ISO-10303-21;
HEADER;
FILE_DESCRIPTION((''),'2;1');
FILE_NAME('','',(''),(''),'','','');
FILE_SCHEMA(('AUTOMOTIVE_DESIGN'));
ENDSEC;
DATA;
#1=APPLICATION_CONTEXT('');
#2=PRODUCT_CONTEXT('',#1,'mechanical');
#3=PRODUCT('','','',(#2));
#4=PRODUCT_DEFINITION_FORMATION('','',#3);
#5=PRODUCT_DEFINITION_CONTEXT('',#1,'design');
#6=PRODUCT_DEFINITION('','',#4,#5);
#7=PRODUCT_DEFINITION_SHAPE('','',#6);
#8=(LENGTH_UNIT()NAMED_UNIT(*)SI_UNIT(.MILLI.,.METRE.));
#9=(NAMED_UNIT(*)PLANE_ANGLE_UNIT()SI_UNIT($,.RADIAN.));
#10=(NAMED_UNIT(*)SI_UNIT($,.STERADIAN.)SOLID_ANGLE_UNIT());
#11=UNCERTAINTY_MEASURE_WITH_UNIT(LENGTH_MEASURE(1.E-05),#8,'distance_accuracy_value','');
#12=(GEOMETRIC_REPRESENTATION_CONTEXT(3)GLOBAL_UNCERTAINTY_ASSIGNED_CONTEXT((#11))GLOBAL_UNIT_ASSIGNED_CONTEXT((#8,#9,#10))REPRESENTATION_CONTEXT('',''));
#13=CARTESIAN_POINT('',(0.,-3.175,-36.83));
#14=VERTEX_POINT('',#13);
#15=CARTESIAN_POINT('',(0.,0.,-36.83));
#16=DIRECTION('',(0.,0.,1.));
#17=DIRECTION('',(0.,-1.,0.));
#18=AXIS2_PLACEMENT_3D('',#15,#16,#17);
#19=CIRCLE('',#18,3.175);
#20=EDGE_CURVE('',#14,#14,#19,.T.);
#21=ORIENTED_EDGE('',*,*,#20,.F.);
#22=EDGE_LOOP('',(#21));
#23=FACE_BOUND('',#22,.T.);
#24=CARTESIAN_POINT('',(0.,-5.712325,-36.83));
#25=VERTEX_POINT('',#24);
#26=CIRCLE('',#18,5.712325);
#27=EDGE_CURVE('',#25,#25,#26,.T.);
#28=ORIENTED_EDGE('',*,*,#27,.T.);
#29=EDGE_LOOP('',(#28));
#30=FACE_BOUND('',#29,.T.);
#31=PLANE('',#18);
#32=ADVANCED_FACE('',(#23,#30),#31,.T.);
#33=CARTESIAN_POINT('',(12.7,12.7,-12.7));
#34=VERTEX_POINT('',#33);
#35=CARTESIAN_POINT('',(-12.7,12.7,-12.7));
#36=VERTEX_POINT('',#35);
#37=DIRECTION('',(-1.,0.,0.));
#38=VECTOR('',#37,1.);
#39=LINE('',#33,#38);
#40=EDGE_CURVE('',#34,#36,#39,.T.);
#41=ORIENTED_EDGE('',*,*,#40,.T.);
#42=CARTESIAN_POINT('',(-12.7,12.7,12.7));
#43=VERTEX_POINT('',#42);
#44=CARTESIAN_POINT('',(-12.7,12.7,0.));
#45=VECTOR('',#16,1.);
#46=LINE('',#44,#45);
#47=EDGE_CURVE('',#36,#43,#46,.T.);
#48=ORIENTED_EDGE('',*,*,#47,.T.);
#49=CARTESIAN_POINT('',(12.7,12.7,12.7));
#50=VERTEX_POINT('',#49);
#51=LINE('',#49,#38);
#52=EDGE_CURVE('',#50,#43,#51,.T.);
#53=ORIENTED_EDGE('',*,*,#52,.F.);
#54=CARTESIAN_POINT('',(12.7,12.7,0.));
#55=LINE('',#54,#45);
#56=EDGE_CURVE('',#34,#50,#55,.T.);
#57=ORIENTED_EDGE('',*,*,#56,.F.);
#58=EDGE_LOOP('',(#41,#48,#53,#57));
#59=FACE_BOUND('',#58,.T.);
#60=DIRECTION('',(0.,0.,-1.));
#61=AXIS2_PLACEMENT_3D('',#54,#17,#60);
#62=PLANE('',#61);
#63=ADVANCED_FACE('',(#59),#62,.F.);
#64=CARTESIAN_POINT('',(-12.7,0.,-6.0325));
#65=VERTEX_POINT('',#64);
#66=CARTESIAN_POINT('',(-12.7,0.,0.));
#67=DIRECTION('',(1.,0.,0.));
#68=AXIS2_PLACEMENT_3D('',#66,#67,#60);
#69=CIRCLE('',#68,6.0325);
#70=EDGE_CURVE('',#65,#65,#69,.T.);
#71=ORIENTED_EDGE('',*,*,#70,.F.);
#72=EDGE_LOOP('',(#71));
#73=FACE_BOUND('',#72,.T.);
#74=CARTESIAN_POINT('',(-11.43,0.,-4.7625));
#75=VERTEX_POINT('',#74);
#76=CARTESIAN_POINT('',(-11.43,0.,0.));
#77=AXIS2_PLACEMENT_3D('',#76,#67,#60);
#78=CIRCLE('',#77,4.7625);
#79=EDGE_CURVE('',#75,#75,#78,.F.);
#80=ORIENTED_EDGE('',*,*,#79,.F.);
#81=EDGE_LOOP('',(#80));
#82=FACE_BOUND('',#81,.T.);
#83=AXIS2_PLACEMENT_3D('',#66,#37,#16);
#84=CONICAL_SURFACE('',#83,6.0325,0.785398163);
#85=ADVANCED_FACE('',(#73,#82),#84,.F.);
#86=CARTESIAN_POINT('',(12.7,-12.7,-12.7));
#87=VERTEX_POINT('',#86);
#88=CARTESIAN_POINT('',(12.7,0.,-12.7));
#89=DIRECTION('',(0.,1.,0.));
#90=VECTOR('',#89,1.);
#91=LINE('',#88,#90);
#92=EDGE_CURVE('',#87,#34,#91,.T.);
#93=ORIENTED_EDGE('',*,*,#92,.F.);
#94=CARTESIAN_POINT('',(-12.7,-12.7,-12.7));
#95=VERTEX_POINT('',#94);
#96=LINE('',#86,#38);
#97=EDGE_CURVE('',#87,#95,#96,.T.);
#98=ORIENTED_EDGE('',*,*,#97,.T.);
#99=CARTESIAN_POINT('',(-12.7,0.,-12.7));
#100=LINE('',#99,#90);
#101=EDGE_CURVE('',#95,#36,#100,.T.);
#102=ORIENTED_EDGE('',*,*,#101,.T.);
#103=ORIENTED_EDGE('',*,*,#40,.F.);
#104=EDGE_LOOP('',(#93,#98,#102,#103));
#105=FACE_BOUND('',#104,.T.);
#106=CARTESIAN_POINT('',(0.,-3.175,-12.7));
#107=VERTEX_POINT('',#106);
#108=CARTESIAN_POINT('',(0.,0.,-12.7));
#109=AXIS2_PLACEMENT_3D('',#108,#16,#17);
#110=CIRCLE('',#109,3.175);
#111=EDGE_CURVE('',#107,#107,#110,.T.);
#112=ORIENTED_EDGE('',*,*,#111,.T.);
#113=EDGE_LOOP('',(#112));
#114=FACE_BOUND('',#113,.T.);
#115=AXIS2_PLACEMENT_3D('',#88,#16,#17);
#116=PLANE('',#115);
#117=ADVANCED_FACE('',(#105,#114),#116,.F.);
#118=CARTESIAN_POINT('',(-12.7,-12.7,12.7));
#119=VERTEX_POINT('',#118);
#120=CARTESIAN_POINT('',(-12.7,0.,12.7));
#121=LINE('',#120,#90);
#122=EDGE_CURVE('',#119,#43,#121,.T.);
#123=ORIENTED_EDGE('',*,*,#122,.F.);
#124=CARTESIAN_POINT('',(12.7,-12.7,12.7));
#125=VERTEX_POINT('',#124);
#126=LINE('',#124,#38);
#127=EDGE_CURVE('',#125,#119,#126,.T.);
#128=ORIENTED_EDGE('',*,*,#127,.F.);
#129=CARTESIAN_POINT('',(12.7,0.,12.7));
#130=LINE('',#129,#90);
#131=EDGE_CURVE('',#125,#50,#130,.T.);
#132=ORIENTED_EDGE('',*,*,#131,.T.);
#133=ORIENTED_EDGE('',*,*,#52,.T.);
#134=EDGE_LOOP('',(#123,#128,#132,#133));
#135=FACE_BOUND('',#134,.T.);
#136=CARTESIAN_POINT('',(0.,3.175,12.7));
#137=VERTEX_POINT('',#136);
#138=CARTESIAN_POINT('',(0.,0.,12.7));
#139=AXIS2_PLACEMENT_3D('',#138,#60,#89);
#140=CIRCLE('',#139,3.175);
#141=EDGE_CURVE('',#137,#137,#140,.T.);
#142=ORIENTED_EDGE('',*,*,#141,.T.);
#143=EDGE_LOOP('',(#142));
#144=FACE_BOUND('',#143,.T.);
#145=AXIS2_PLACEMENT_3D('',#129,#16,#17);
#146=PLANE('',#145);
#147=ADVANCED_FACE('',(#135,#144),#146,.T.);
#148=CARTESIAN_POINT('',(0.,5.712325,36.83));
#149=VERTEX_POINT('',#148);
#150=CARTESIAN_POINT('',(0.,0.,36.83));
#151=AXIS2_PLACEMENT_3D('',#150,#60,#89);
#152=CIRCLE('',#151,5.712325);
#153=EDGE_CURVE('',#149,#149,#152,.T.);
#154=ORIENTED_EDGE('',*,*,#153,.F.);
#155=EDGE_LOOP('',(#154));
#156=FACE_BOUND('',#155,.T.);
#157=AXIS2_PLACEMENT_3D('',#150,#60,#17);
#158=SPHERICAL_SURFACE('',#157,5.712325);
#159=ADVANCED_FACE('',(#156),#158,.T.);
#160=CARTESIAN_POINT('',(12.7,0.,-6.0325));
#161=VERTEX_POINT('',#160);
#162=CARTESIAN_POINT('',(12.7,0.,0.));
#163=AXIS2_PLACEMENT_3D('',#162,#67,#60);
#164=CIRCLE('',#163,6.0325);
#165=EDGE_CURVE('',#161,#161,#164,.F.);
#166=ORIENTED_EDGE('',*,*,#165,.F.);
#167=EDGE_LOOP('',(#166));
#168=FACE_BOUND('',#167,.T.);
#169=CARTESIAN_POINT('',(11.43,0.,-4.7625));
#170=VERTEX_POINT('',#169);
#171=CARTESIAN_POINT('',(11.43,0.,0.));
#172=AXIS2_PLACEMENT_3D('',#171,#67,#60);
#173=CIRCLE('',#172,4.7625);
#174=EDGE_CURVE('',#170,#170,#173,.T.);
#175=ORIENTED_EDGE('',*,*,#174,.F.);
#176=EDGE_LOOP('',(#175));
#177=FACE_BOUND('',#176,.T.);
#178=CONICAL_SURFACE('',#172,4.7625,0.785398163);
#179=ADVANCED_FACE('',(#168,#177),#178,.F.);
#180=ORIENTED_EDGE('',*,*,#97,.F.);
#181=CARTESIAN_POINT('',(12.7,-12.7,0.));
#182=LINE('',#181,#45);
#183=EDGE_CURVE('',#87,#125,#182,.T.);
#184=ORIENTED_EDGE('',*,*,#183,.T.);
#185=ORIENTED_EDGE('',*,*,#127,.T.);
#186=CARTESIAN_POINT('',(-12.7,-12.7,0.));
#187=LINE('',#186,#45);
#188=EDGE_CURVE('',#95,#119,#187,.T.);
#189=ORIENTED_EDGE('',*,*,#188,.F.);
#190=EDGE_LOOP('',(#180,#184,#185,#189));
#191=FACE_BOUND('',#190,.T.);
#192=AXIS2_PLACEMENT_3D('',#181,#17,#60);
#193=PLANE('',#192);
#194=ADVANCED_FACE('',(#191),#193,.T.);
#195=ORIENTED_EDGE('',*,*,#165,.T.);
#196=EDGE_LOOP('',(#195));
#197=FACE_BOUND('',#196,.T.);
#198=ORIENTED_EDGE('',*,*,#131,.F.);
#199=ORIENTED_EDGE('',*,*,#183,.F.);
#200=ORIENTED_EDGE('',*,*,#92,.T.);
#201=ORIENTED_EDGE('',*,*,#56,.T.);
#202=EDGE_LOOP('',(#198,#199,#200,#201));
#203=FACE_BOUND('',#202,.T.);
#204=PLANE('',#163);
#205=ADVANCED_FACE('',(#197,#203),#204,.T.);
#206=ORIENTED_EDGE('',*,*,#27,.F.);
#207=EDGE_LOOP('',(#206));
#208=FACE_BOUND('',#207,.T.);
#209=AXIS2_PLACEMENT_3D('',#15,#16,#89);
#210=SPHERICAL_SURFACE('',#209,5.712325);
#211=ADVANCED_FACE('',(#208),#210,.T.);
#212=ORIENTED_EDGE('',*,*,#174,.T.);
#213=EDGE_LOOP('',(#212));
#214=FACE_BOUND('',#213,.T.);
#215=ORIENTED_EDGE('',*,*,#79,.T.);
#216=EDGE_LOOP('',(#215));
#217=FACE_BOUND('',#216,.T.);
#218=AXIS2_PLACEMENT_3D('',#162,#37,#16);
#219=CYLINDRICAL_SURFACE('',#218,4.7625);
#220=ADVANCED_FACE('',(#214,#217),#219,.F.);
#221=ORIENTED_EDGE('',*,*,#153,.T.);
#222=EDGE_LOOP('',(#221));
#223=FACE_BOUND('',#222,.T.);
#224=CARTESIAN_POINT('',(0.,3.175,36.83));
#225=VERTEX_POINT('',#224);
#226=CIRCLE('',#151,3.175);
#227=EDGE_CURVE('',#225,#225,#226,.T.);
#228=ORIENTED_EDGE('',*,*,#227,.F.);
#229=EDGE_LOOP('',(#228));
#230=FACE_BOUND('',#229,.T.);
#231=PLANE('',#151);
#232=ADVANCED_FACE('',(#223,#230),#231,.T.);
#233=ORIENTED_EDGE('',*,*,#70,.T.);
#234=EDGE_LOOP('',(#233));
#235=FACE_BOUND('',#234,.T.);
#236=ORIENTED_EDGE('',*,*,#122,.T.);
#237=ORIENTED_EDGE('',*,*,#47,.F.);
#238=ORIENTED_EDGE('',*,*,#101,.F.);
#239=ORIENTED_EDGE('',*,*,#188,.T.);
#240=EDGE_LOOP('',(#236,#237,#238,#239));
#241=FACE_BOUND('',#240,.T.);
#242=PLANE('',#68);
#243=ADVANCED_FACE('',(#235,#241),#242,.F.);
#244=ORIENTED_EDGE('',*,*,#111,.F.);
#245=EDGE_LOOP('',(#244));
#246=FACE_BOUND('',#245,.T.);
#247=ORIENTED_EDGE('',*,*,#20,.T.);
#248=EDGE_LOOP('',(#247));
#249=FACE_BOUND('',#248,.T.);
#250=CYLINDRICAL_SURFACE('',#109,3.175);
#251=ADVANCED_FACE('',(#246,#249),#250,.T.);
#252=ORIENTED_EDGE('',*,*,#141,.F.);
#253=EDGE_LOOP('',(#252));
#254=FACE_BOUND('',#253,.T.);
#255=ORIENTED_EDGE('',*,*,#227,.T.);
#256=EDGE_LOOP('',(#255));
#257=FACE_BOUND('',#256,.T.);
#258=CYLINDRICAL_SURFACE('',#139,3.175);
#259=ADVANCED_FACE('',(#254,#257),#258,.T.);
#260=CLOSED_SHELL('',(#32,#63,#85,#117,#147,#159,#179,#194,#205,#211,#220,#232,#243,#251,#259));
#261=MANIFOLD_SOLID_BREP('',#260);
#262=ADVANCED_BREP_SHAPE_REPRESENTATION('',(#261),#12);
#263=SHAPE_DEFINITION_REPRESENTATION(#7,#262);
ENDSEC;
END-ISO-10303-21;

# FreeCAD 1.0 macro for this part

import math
import FreeCAD as App
import Part
import Sketcher
from FreeCAD import Vector
Q = App.Units.Quantity


def edges_at(feature, points):
    """Names of the edges that pass closest to the given points."""
    edges = feature.Shape.Edges
    near = lambda p: min(range(len(edges)), key=lambda i: edges[i].distToShape(Part.Vertex(*p))[0])
    return sorted({f"Edge{near(p) + 1}" for p in points})

doc = App.newDocument("Part")
body = doc.addObject("PartDesign::Body", "Body")

# Sketch on YZ plane
sketch1 = body.newObject("Sketcher::SketchObject", "Sketch")
sketch1.AttachmentSupport = (doc.getObject("YZ_Plane"), [""])
sketch1.MapMode = "FlatFace"
sketch1.addGeometry(Part.LineSegment(Vector(12.7, 12.7, 0), Vector(-12.7, 12.7, 0)), False)
sketch1.addGeometry(Part.LineSegment(Vector(-12.7, 12.7, 0), Vector(-12.7, -12.7, 0)), False)
sketch1.addGeometry(Part.LineSegment(Vector(-12.7, -12.7, 0), Vector(12.7, -12.7, 0)), False)
sketch1.addGeometry(Part.LineSegment(Vector(12.7, -12.7, 0), Vector(12.7, 12.7, 0)), False)
sketch1.addGeometry(Part.Circle(Vector(0, 0, 0), Vector(0, 0, 1), 4.8), False)
sketch1.addConstraint(Sketcher.Constraint("Coincident", 0, 2, 1, 1))
sketch1.addConstraint(Sketcher.Constraint("Coincident", 1, 2, 2, 1))
sketch1.addConstraint(Sketcher.Constraint("Coincident", 2, 2, 3, 1))
sketch1.addConstraint(Sketcher.Constraint("Coincident", 3, 2, 0, 1))
sketch1.addConstraint(Sketcher.Constraint("Horizontal", 0))
sketch1.addConstraint(Sketcher.Constraint("Vertical", 1))
sketch1.addConstraint(Sketcher.Constraint("Horizontal", 2))
sketch1.addConstraint(Sketcher.Constraint("Vertical", 3))
sketch1.addConstraint(Sketcher.Constraint("Coincident", 4, 3, -1, 1))
sketch1.addConstraint(Sketcher.Constraint("Symmetric", 0, 2, 2, 2, -1, 1))
sketch1.addConstraint(Sketcher.Constraint("Equal", 2, 1))
sketch1.addConstraint(Sketcher.Constraint("DistanceX", 0, 2, 0, 1, Q("1 in")))
sketch1.addConstraint(Sketcher.Constraint("Diameter", 4, Q("0.375 in")))
pad1 = body.newObject("PartDesign::Pad", "Pad")
pad1.Profile = sketch1
pad1.Length = Q("1 in")
pad1.Midplane = True

# Sketch on YZ plane
sketch2 = body.newObject("Sketcher::SketchObject", "Sketch001")
sketch2.AttachmentSupport = (doc.getObject("YZ_Plane"), [""])
sketch2.MapMode = "FlatFace"
sketch2.addGeometry(Part.LineSegment(Vector(0, 12.7, 0), Vector(3.2, 12.7, 0)), False)
sketch2.addGeometry(Part.LineSegment(Vector(3.2, 12.7, 0), Vector(3.2, 36.8, 0)), False)
sketch2.addGeometry(Part.LineSegment(Vector(3.2, 36.8, 0), Vector(5.7, 36.8, 0)), False)
sketch2.addGeometry(Part.ArcOfCircle(Part.Circle(Vector(0, 36.8, 0), Vector(0, 0, 1), 5.7), math.radians(0), math.radians(90)), False)
sketch2.addGeometry(Part.LineSegment(Vector(0, 42.5, 0), Vector(0, 12.7, 0)), False)
sketch2.addConstraint(Sketcher.Constraint("Coincident", 0, 2, 1, 1))
sketch2.addConstraint(Sketcher.Constraint("Coincident", 1, 2, 2, 1))
sketch2.addConstraint(Sketcher.Constraint("Coincident", 2, 2, 3, 1))
sketch2.addConstraint(Sketcher.Constraint("Coincident", 3, 2, 4, 1))
sketch2.addConstraint(Sketcher.Constraint("Coincident", 4, 2, 0, 1))
sketch2.addConstraint(Sketcher.Constraint("Horizontal", 0))
sketch2.addConstraint(Sketcher.Constraint("Vertical", 1))
sketch2.addConstraint(Sketcher.Constraint("Horizontal", 2))
sketch2.addConstraint(Sketcher.Constraint("Vertical", 4))
sketch2.addConstraint(Sketcher.Constraint("PointOnObject", 3, 3, -2))
sketch2.addConstraint(Sketcher.Constraint("PointOnObject", 3, 2, -2))
sketch2.addConstraint(Sketcher.Constraint("Horizontal", 3, 3, 1, 2))
sketch2.addConstraint(Sketcher.Constraint("DistanceY", 1, 1, 1, 2, Q("0.95 in")))
sketch2.addConstraint(Sketcher.Constraint("DistanceY", -1, 1, 0, 2, Q("0.5 in")))
sketch2.addConstraint(Sketcher.Constraint("DistanceX", 0, 1, 0, 2, Q("0.125 in")))
sketch2.addConstraint(Sketcher.Constraint("Radius", 3, 5.712325))
revolution = body.newObject("PartDesign::Revolution", "Revolution")
revolution.Profile = sketch2
revolution.ReferenceAxis = (sketch2, ["V_Axis"])
revolution.Angle = 360

# Sketch on YZ plane
sketch3 = body.newObject("Sketcher::SketchObject", "Sketch002")
sketch3.AttachmentSupport = (doc.getObject("YZ_Plane"), [""])
sketch3.MapMode = "FlatFace"
sketch3.addGeometry(Part.LineSegment(Vector(3.2, -12.7, 0), Vector(0, -12.7, 0)), False)
sketch3.addGeometry(Part.LineSegment(Vector(0, -12.7, 0), Vector(0, -42.5, 0)), False)
sketch3.addGeometry(Part.ArcOfCircle(Part.Circle(Vector(0, -36.8, 0), Vector(0, 0, 1), 5.7), math.radians(-90), math.radians(0)), False)
sketch3.addGeometry(Part.LineSegment(Vector(5.7, -36.8, 0), Vector(3.2, -36.8, 0)), False)
sketch3.addGeometry(Part.LineSegment(Vector(3.2, -36.8, 0), Vector(3.2, -12.7, 0)), False)
sketch3.addConstraint(Sketcher.Constraint("Coincident", 0, 2, 1, 1))
sketch3.addConstraint(Sketcher.Constraint("Coincident", 1, 2, 2, 1))
sketch3.addConstraint(Sketcher.Constraint("Coincident", 2, 2, 3, 1))
sketch3.addConstraint(Sketcher.Constraint("Coincident", 3, 2, 4, 1))
sketch3.addConstraint(Sketcher.Constraint("Coincident", 4, 2, 0, 1))
sketch3.addConstraint(Sketcher.Constraint("Horizontal", 0))
sketch3.addConstraint(Sketcher.Constraint("Vertical", 1))
sketch3.addConstraint(Sketcher.Constraint("Horizontal", 3))
sketch3.addConstraint(Sketcher.Constraint("Vertical", 4))
sketch3.addConstraint(Sketcher.Constraint("PointOnObject", 2, 3, -2))
sketch3.addConstraint(Sketcher.Constraint("PointOnObject", 0, 2, -2))
sketch3.addConstraint(Sketcher.Constraint("DistanceY", 4, 1, 4, 2, Q("0.95 in")))
sketch3.addConstraint(Sketcher.Constraint("DistanceY", 0, 2, -1, 1, Q("0.5 in")))
sketch3.addConstraint(Sketcher.Constraint("DistanceX", 0, 2, 0, 1, Q("0.125 in")))
sketch3.addConstraint(Sketcher.Constraint("DistanceY", 2, 3, -1, 1, Q("1.45 in")))
sketch3.addConstraint(Sketcher.Constraint("Radius", 2, 5.712325))
revolution2 = body.newObject("PartDesign::Revolution", "Revolution001")
revolution2.Profile = sketch3
revolution2.ReferenceAxis = (sketch3, ["V_Axis"])
revolution2.Angle = 360
doc.recompute()

chamfer = body.newObject("PartDesign::Chamfer", "Chamfer")
chamfer.Base = (revolution2, edges_at(revolution2, [(12.7, 0, 4.763), (-12.7, 0, 4.763)]))
chamfer.Size = Q("0.05 in")

doc.recompute()
